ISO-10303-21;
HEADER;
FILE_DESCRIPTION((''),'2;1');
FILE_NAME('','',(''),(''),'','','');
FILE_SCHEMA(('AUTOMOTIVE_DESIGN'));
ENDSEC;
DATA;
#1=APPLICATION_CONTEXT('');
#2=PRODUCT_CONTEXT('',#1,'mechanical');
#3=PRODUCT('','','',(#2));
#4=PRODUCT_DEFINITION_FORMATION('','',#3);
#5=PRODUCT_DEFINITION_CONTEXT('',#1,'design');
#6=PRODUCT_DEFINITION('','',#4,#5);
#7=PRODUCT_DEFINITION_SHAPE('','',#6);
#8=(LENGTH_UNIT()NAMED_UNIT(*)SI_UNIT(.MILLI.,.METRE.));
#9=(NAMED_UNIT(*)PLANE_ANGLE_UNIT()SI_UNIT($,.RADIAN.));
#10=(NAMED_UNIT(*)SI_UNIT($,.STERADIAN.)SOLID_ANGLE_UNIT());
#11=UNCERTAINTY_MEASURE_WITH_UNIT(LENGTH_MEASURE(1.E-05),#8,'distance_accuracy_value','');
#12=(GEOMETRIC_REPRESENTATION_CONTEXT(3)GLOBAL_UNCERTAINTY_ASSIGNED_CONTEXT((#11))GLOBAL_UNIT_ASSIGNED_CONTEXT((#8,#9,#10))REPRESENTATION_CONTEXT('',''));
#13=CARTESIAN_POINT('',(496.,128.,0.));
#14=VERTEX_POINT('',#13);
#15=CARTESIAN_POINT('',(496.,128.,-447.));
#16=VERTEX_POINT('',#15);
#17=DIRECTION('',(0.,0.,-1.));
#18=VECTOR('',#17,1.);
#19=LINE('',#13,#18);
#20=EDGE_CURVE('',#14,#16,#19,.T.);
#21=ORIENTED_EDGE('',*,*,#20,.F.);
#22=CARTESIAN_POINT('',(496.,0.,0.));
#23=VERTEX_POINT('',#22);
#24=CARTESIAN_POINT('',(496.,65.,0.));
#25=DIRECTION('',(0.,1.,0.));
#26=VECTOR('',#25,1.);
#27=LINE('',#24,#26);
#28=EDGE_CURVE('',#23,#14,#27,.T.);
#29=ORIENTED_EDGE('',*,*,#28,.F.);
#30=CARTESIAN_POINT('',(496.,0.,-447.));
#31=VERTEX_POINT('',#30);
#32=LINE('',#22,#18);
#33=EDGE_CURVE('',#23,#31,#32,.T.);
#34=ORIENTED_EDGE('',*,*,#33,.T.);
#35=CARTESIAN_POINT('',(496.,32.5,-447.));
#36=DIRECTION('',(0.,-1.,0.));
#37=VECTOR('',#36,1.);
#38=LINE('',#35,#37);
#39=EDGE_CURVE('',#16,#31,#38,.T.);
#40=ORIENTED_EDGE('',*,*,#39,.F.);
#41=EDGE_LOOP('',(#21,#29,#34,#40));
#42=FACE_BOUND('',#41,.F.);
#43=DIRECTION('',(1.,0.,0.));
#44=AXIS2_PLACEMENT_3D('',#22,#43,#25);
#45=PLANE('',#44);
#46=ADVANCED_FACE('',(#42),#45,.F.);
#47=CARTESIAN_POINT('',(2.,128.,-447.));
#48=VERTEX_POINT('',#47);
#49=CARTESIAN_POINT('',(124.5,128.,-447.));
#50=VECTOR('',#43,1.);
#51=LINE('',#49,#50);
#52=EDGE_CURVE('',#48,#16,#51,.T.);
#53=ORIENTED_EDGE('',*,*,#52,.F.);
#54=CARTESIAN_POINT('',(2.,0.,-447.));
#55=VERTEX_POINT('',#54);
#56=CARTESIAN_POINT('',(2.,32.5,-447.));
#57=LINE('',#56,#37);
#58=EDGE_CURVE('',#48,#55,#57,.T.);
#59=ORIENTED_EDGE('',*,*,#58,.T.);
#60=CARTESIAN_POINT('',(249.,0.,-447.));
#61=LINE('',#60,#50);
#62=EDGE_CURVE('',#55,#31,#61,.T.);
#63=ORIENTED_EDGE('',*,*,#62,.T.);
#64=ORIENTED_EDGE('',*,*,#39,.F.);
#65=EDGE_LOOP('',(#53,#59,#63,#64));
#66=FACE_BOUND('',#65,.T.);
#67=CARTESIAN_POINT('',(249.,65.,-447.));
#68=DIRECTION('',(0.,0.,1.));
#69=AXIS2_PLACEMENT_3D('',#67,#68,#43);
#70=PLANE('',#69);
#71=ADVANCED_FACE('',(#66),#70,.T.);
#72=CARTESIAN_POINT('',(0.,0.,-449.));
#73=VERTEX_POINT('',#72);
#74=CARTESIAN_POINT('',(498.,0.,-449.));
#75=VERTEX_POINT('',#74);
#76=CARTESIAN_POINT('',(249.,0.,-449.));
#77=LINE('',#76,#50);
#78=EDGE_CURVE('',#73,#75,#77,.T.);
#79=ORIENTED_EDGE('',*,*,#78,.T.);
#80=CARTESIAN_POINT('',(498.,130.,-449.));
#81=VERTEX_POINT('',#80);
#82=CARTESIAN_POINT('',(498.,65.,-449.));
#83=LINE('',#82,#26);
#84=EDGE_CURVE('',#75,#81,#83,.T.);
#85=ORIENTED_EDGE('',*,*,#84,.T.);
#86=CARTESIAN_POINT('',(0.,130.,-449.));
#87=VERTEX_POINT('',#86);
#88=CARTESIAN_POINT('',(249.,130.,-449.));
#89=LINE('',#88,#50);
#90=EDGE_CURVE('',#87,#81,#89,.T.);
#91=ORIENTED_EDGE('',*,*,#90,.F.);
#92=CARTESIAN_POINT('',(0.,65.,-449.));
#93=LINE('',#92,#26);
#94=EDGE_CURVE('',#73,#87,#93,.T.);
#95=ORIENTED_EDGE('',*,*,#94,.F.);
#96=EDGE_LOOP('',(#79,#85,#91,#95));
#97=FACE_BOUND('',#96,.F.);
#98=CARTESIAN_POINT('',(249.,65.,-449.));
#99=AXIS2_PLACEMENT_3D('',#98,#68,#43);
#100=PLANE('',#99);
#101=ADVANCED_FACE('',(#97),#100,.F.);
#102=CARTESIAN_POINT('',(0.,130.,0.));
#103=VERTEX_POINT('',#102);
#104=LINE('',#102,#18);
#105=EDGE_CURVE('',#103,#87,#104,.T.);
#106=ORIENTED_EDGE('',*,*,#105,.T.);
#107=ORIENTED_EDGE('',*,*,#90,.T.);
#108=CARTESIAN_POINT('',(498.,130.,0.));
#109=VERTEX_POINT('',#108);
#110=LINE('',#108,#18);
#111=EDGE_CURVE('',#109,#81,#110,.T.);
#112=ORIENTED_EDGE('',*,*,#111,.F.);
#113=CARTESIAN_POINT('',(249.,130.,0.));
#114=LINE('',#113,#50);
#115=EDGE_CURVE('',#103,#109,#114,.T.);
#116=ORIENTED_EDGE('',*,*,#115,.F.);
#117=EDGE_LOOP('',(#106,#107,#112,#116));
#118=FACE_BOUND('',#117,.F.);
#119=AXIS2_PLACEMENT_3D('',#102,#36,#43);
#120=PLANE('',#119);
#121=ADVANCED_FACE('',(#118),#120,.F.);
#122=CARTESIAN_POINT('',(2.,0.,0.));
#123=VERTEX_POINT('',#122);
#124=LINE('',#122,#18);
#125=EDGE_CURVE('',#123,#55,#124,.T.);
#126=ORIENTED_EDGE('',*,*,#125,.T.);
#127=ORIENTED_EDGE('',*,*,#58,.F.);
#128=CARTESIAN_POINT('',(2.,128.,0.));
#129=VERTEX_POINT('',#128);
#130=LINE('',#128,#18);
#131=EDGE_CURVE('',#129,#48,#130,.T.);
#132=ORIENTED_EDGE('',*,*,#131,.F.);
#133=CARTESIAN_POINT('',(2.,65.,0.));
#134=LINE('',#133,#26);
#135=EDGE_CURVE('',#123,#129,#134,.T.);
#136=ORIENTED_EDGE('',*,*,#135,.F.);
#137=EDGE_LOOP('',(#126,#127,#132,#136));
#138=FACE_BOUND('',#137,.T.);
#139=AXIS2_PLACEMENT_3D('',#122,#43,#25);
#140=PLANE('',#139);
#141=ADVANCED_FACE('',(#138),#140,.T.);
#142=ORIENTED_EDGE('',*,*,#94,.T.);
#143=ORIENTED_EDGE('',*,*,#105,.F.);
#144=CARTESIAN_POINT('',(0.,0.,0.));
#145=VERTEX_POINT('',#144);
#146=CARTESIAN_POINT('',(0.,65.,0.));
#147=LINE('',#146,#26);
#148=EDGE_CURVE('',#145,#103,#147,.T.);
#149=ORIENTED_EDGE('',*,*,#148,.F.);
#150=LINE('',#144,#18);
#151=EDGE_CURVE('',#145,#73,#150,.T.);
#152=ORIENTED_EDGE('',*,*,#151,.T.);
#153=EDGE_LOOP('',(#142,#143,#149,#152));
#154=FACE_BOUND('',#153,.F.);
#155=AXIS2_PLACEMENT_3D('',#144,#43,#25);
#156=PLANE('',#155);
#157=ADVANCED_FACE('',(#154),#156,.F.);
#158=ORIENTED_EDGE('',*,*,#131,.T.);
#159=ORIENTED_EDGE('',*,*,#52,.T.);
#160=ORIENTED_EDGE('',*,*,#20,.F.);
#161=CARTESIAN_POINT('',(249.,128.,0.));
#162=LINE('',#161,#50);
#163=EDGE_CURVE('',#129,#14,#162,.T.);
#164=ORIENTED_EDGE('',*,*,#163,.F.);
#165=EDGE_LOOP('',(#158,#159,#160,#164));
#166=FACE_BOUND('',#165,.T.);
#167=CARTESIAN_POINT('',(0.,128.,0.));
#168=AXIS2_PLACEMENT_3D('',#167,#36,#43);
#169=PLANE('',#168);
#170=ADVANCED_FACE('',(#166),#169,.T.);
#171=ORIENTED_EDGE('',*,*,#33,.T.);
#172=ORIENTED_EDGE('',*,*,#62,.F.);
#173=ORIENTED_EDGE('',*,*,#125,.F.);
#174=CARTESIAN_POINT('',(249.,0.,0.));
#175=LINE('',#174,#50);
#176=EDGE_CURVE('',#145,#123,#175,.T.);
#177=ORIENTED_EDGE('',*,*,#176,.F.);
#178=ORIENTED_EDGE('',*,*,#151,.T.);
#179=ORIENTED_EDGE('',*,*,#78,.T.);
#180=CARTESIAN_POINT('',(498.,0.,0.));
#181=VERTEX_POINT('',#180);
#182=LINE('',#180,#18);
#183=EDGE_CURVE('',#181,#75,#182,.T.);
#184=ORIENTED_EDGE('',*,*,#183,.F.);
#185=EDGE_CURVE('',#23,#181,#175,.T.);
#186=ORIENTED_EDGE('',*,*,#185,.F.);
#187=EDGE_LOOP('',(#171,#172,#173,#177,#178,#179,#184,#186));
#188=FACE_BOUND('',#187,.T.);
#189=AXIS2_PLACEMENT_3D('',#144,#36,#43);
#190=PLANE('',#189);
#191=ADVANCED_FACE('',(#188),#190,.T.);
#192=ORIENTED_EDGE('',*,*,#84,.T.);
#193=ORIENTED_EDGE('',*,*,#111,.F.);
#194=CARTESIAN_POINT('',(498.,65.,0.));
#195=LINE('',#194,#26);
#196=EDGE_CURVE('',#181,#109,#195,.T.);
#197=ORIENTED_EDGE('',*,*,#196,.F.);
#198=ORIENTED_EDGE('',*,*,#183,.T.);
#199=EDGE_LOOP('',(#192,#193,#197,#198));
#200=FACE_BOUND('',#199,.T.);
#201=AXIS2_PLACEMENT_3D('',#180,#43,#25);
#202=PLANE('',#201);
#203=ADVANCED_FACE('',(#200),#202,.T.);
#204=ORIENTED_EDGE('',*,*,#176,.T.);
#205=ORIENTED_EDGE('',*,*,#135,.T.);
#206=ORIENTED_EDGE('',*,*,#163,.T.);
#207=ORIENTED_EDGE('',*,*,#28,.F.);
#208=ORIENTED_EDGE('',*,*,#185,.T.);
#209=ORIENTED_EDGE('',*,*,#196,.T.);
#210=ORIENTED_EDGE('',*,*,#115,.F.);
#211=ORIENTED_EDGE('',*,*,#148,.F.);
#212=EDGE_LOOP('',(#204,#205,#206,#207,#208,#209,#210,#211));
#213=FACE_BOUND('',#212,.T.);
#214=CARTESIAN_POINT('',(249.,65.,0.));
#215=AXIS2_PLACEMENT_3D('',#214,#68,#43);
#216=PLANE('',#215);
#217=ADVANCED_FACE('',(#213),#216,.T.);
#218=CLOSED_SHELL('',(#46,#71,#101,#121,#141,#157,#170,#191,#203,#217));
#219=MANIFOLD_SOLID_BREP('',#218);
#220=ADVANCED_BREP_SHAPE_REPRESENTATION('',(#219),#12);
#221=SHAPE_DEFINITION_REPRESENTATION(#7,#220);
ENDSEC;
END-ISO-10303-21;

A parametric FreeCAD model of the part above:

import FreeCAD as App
import Part
import Sketcher


def faces_at(feature, points):
    """Names of the faces that lie closest to the given points."""
    faces = feature.Shape.Faces
    near = lambda p: min(range(len(faces)), key=lambda i: faces[i].distToShape(Part.Vertex(*p))[0])
    return sorted({f"Face{near(p) + 1}" for p in points})


def add_polygon(sketch, points):
    """Adds a closed chain of lines whose ends are joined by coincident constraints."""
    first, n = sketch.GeometryCount, len(points)
    for a, b in zip(points, points[1:] + points[:1]):
        sketch.addGeometry(Part.LineSegment(App.Vector(*a, 0), App.Vector(*b, 0)), False)
    for i in range(n):
        sketch.addConstraint(Sketcher.Constraint("Coincident", first + i, 2, first + (i + 1) % n, 1))

doc = App.newDocument("Part")
body = doc.addObject("PartDesign::Body", "Body")

# Sketch on XY plane
sketch1 = body.newObject("Sketcher::SketchObject", "Sketch")
sketch1.AttachmentSupport = (doc.getObject("XY_Plane"), [""])
sketch1.MapMode = "FlatFace"
add_polygon(sketch1, [(0, 130), (0, 0), (498, 0), (498, 130)])  # lines 0-3
sketch1.addConstraint([
    Sketcher.Constraint("Vertical", 0),
    Sketcher.Constraint("Horizontal", 1),
    Sketcher.Constraint("Vertical", 2),
    Sketcher.Constraint("Horizontal", 3),
    Sketcher.Constraint("Coincident", 0, 2, -1, 1),
    Sketcher.Constraint("DistanceX", 1, 1, 1, 2, 498.0),
    Sketcher.Constraint("DistanceY", 0, 2, 0, 1, 130.0),
])
pad1 = body.newObject("PartDesign::Pad", "Pad")
pad1.Profile = sketch1
pad1.Length = 449
pad1.Reversed = True
doc.recompute()

thickness = body.newObject("PartDesign::Thickness", "Thickness")
thickness.Base = (pad1, faces_at(pad1, [(249, 0, -224.5), (249, 65, 0)]))
thickness.Value = 2
thickness.Reversed = True
thickness.Join = "Arc"

doc.recompute()
